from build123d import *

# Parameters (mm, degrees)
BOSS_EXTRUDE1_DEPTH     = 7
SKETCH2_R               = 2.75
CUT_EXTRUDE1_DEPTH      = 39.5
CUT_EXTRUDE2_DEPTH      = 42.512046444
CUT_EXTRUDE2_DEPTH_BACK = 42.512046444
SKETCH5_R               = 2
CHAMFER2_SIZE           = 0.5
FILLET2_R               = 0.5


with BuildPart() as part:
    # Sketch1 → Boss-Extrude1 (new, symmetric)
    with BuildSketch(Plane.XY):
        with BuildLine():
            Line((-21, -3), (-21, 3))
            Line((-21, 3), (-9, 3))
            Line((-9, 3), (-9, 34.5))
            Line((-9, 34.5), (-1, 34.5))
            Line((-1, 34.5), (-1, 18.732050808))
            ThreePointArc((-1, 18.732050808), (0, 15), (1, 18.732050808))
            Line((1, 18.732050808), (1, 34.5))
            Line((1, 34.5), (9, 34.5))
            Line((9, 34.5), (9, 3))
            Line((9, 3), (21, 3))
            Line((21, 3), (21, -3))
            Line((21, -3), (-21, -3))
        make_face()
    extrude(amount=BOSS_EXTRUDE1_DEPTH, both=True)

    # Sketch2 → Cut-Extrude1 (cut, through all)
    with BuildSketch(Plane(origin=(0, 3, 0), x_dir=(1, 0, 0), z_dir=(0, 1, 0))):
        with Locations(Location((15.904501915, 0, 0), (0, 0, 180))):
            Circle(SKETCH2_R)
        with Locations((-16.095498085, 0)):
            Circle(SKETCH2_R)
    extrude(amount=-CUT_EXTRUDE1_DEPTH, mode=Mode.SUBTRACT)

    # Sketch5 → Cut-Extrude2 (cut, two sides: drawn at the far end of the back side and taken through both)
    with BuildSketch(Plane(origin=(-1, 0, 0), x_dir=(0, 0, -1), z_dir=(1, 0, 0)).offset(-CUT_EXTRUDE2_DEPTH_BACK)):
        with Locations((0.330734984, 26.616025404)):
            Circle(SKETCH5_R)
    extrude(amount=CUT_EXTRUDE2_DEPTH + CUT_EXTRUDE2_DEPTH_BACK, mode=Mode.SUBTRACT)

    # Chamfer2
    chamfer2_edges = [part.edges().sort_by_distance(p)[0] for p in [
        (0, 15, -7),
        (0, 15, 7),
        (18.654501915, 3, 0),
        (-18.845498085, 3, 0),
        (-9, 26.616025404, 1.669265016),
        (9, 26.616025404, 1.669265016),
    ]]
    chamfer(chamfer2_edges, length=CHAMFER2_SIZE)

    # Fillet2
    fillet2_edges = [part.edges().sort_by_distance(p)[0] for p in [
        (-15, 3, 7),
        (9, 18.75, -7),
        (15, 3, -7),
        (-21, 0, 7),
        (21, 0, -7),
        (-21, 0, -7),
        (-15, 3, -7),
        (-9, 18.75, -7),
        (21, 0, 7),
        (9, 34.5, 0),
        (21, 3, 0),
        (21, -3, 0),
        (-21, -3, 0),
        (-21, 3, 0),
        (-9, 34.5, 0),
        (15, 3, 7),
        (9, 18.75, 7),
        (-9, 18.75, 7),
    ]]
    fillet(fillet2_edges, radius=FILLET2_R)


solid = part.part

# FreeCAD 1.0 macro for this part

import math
import FreeCAD as App
import Part
import Sketcher
from FreeCAD import Vector


def edges_at(feature, points):
    """Names of the edges that pass closest to the given points."""
    edges = feature.Shape.Edges
    near = lambda p: min(range(len(edges)), key=lambda i: edges[i].distToShape(Part.Vertex(*p))[0])
    return sorted({f"Edge{near(p) + 1}" for p in points})

doc = App.newDocument("Part")
body = doc.addObject("PartDesign::Body", "Body")

# Sketch on XY plane
sketch1 = body.newObject("Sketcher::SketchObject", "Sketch")
sketch1.AttachmentSupport = (doc.getObject("XY_Plane"), [""])
sketch1.MapMode = "FlatFace"
sketch1.addGeometry([
    Part.LineSegment(Vector(-21, 3, 0), Vector(-21, -3, 0)),  # 0
    Part.LineSegment(Vector(-21, -3, 0), Vector(21, -3, 0)),  # 1
    Part.LineSegment(Vector(21, -3, 0), Vector(21, 3, 0)),  # 2
    Part.LineSegment(Vector(21, 3, 0), Vector(9, 3, 0)),  # 3
    Part.LineSegment(Vector(9, 3, 0), Vector(9, 34.5, 0)),  # 4
    Part.LineSegment(Vector(9, 34.5, 0), Vector(1, 34.5, 0)),  # 5
    Part.LineSegment(Vector(1, 34.5, 0), Vector(1, 18.7, 0)),  # 6
    Part.ArcOfCircle(Part.Circle(Vector(0, 17, 0), Vector(0, 0, 1), 2), math.radians(120), math.radians(420)),  # 7
    Part.LineSegment(Vector(-1, 18.7, 0), Vector(-1, 34.5, 0)),  # 8
    Part.LineSegment(Vector(-1, 34.5, 0), Vector(-9, 34.5, 0)),  # 9
    Part.LineSegment(Vector(-9, 34.5, 0), Vector(-9, 3, 0)),  # 10
    Part.LineSegment(Vector(-9, 3, 0), Vector(-21, 3, 0)),  # 11
], False)
sketch1.addConstraint([
    Sketcher.Constraint("Coincident", 0, 2, 1, 1),
    Sketcher.Constraint("Coincident", 1, 2, 2, 1),
    Sketcher.Constraint("Coincident", 2, 2, 3, 1),
    Sketcher.Constraint("Coincident", 3, 2, 4, 1),
    Sketcher.Constraint("Coincident", 4, 2, 5, 1),
    Sketcher.Constraint("Coincident", 5, 2, 6, 1),
    Sketcher.Constraint("Coincident", 6, 2, 7, 2),
    Sketcher.Constraint("Coincident", 7, 1, 8, 1),
    Sketcher.Constraint("Coincident", 8, 2, 9, 1),
    Sketcher.Constraint("Coincident", 9, 2, 10, 1),
    Sketcher.Constraint("Coincident", 10, 2, 11, 1),
    Sketcher.Constraint("Coincident", 11, 2, 0, 1),
    Sketcher.Constraint("Vertical", 0),
    Sketcher.Constraint("Horizontal", 1),
    Sketcher.Constraint("Vertical", 2),
    Sketcher.Constraint("Horizontal", 3),
    Sketcher.Constraint("Vertical", 4),
    Sketcher.Constraint("Horizontal", 5),
    Sketcher.Constraint("Vertical", 6),
    Sketcher.Constraint("Vertical", 8),
    Sketcher.Constraint("Horizontal", 9),
    Sketcher.Constraint("Vertical", 10),
    Sketcher.Constraint("Horizontal", 11),
    Sketcher.Constraint("Symmetric", 0, 2, 2, 2, -1, 1),
    Sketcher.Constraint("Symmetric", 6, 2, 7, 1, -2),
    Sketcher.Constraint("Symmetric", 4, 2, 9, 2, -2),
    Sketcher.Constraint("Horizontal", 3, 2, 10, 2),
    Sketcher.Constraint("Radius", 7, 2.0),
    Sketcher.Constraint("DistanceX", 1, 1, 1, 2, 42.0),
    Sketcher.Constraint("DistanceX", 3, 2, 3, 1, 12.0),
    Sketcher.Constraint("DistanceX", 5, 2, 5, 1, 8.0),
    Sketcher.Constraint("DistanceY", 0, 2, 0, 1, 6.0),
    Sketcher.Constraint("DistanceY", 4, 1, 4, 2, 31.5),
    Sketcher.Constraint("DistanceY", -1, 1, 7, 3, 17.0),
])
pad1 = body.newObject("PartDesign::Pad", "Pad")
pad1.Profile = sketch1
pad1.Length = 14
pad1.Midplane = True

# Sketch on XZ plane
sketch2 = body.newObject("Sketcher::SketchObject", "Sketch001")
sketch2.AttachmentSupport = (doc.getObject("XZ_Plane"), [""])
sketch2.MapMode = "FlatFace"
sketch2.AttachmentOffset = App.Placement(Vector(0, 0, -3), App.Rotation())
sketch2.addGeometry([
    Part.Circle(Vector(15.9, 0, 0), Vector(0, 0, 1), 2.8),
    Part.Circle(Vector(-16.1, 0, 0), Vector(0, 0, 1), 2.8),
], False)
sketch2.addConstraint([
    Sketcher.Constraint("Equal", 0, 1),
    Sketcher.Constraint("PointOnObject", 0, 3, -1),
    Sketcher.Constraint("PointOnObject", 1, 3, -1),
    Sketcher.Constraint("Diameter", 0, 5.5),
    Sketcher.Constraint("DistanceX", 1, 3, 0, 3, 32.0),
    Sketcher.Constraint("DistanceX", -1, 1, 0, 3, 15.904502),
])
pocket1 = body.newObject("PartDesign::Pocket", "Pocket")
pocket1.Profile = sketch2
pocket1.Type = "ThroughAll"
pocket1.Reversed = True

# Sketch on YZ plane
sketch3 = body.newObject("Sketcher::SketchObject", "Sketch002")
sketch3.AttachmentSupport = (doc.getObject("YZ_Plane"), [""])
sketch3.MapMode = "FlatFace"
sketch3.AttachmentOffset = App.Placement(Vector(0, 0, -1), App.Rotation())
sketch3.addGeometry(Part.Circle(Vector(26.6, -0.3, 0), Vector(0, 0, 1), 2), False)
sketch3.addConstraint([
    Sketcher.Constraint("Diameter", 0, 4.0),
    Sketcher.Constraint("DistanceX", -1, 1, 0, 3, 26.616025),
    Sketcher.Constraint("DistanceY", 0, 3, -1, 1, 0.330735),
])
pocket2 = body.newObject("PartDesign::Pocket", "Pocket001")
pocket2.Profile = sketch3
pocket2.Type = "ThroughAll"
pocket2.Midplane = True
doc.recompute()

chamfer = body.newObject("PartDesign::Chamfer", "Chamfer")
chamfer.Base = (pocket2, edges_at(pocket2, [
    (0, 15, -7),
    (0, 15, 7),
    (18.655, 3, 0),
    (-18.845, 3, 0),
    (-9, 26.616, 1.669),
    (9, 26.616, 1.669),
]))
chamfer.Size = 0.5
doc.recompute()

fillet = body.newObject("PartDesign::Fillet", "Fillet")
fillet.Base = (chamfer, edges_at(chamfer, [
    (-15, 3, 7),
    (9, 18.75, -7),
    (15, 3, -7),
    (-21, 0, 7),
    (21, 0, -7),
    (-21, 0, -7),
    (-15, 3, -7),
    (-9, 18.75, -7),
    (21, 0, 7),
    (9, 34.5, 0),
    (21, 3, 0),
    (21, -3, 0),
    (-21, -3, 0),
    (-21, 3, 0),
    (-9, 34.5, 0),
    (15, 3, 7),
    (9, 18.75, 7),
    (-9, 18.75, 7),
]))
fillet.Radius = 0.5

doc.recompute()
